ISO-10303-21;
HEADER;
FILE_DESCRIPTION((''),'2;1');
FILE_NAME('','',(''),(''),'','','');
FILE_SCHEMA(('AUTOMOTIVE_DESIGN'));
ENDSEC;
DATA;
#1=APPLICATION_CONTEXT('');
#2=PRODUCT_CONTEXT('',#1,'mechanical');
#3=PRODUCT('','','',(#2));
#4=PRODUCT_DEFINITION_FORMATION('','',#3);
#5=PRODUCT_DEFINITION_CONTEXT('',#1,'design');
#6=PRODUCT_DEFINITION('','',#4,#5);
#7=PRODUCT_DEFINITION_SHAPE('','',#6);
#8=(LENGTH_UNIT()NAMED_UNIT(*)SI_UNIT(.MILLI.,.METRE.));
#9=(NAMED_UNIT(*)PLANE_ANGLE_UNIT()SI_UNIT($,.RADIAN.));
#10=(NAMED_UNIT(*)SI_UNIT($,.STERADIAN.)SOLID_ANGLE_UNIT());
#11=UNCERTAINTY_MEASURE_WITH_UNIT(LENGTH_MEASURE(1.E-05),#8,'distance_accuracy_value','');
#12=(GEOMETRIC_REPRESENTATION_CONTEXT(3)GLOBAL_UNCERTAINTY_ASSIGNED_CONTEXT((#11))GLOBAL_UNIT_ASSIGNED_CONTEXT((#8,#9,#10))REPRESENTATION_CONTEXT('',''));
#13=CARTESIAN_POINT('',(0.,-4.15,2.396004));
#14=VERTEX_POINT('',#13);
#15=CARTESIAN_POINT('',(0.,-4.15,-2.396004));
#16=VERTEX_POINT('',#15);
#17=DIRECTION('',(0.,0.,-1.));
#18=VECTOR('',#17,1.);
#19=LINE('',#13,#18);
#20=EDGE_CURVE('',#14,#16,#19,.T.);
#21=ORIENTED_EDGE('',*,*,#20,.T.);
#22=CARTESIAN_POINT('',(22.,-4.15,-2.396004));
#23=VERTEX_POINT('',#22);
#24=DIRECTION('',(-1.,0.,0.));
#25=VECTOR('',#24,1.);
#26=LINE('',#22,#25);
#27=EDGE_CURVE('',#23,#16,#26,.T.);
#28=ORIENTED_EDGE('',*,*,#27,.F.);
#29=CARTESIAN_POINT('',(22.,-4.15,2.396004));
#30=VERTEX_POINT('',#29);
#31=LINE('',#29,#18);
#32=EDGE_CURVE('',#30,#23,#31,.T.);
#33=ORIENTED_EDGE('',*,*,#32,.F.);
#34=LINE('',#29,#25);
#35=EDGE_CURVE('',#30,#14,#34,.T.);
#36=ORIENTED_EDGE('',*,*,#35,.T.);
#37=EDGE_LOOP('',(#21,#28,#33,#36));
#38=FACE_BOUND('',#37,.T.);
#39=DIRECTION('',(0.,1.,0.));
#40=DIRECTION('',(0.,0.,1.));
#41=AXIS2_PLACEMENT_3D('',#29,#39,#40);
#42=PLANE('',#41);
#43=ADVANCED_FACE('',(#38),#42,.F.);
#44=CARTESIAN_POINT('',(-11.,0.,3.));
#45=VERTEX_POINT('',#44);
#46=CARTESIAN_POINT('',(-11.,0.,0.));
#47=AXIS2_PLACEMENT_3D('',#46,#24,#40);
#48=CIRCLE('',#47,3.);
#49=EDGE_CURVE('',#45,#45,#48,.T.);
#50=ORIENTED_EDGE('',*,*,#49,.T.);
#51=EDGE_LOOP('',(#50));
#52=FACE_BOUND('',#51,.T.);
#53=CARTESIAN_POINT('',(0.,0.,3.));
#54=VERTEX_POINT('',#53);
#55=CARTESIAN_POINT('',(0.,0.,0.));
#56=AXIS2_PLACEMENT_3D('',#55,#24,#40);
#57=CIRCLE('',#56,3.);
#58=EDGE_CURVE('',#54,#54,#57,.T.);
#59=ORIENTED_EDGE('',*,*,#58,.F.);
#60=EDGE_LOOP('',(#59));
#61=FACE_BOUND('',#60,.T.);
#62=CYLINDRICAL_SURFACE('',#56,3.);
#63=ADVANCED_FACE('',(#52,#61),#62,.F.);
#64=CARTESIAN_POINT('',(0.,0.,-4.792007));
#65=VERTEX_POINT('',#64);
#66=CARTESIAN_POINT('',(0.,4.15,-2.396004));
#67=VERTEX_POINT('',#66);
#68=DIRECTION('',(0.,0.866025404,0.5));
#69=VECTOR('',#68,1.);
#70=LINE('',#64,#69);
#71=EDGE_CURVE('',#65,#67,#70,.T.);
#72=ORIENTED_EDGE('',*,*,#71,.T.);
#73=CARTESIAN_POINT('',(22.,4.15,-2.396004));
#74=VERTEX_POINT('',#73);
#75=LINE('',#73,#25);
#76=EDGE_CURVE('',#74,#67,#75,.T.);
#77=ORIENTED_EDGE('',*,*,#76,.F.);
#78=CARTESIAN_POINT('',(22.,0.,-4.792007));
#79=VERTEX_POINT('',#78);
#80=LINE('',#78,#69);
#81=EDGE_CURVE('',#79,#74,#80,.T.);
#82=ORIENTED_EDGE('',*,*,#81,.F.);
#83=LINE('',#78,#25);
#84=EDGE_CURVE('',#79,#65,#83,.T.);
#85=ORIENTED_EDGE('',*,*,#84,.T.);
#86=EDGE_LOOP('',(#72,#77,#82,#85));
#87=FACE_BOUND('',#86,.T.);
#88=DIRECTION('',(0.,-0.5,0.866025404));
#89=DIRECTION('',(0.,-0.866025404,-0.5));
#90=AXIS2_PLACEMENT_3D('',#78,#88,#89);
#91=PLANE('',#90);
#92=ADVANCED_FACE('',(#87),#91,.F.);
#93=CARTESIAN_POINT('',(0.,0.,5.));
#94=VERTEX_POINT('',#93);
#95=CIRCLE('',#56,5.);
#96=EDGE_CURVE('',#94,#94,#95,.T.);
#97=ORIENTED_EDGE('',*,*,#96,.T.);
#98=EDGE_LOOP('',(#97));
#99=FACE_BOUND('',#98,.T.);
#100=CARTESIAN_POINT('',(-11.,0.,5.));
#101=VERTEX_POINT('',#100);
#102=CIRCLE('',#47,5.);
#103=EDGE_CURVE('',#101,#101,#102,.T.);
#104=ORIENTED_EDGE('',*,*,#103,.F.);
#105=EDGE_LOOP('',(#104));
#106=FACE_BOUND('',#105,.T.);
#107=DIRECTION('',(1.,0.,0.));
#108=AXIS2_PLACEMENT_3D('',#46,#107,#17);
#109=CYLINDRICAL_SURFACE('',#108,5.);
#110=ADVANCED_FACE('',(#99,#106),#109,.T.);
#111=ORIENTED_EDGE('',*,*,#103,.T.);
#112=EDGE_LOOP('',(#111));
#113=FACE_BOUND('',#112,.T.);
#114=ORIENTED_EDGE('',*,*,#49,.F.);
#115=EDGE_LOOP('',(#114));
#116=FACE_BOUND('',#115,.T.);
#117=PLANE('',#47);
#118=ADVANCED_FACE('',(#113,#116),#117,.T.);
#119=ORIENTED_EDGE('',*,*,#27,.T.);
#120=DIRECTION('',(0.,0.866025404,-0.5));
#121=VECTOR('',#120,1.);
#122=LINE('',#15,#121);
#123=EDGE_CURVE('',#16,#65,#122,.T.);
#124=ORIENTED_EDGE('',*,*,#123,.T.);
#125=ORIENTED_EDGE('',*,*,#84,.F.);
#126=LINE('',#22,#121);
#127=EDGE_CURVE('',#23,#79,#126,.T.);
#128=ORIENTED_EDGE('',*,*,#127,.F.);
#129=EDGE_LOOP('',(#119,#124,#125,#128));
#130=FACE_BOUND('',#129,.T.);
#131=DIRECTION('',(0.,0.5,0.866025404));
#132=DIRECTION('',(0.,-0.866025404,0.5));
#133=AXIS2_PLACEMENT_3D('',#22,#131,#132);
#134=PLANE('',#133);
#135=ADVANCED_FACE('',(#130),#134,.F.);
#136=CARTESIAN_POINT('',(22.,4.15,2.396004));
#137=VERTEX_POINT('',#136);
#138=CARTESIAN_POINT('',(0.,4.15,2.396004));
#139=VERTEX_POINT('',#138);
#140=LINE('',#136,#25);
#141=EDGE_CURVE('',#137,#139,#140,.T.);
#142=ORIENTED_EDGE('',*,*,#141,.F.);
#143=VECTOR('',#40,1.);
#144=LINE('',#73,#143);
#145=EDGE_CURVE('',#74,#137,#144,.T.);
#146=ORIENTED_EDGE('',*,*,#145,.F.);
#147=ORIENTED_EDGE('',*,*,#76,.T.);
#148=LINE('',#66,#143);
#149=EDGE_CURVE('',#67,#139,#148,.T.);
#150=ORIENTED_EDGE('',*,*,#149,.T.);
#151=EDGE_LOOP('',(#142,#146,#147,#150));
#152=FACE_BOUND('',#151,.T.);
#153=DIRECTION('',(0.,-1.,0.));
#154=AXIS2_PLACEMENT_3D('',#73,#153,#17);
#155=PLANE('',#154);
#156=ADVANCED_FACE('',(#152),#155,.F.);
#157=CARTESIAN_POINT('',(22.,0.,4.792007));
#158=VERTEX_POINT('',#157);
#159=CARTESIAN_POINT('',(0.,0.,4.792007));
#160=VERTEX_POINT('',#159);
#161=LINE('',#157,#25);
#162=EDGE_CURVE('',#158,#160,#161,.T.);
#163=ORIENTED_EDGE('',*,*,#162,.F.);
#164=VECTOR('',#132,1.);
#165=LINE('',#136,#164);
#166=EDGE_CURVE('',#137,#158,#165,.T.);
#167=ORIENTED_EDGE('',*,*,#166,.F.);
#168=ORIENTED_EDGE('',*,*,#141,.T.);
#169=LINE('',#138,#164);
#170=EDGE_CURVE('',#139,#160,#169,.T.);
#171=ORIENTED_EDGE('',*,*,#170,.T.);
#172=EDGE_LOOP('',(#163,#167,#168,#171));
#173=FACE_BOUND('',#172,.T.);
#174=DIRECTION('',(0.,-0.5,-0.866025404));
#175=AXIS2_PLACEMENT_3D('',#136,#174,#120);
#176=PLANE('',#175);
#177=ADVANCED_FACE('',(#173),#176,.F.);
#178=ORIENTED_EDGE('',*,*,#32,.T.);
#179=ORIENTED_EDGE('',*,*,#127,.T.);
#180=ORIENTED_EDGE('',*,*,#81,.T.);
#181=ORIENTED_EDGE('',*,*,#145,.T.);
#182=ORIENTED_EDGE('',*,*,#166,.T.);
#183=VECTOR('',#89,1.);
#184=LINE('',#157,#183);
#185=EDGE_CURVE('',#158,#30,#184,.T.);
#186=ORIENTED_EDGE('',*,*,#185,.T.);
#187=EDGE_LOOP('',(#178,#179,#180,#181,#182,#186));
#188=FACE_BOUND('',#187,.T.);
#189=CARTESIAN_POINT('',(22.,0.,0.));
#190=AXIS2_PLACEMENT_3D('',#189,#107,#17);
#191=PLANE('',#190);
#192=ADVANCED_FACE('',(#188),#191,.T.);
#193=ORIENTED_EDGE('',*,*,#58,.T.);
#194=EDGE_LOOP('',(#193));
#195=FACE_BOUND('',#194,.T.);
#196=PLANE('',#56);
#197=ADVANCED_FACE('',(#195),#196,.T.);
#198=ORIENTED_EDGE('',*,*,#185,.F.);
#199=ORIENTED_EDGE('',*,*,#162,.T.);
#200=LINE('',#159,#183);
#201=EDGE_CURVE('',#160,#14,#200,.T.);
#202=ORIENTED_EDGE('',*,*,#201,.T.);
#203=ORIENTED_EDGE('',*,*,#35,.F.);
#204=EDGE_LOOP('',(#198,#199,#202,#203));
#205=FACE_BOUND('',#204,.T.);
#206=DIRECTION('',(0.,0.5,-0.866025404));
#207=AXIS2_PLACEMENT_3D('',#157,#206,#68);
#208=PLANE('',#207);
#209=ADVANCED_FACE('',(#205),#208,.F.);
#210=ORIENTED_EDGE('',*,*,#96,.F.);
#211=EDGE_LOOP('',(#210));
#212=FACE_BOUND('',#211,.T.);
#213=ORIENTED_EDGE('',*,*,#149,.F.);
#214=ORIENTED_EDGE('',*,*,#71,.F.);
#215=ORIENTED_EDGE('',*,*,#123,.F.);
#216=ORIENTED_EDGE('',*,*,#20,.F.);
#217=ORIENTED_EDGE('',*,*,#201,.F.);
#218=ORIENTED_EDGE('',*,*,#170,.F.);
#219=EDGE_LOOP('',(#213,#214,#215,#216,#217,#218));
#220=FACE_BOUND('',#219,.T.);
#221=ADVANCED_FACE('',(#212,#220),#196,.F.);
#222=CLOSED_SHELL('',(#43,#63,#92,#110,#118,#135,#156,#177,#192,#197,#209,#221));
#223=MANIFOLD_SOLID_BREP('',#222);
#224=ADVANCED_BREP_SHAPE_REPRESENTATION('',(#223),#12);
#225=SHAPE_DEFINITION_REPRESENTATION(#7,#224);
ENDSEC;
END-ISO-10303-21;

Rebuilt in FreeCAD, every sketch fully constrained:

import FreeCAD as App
import Part
import Sketcher
from FreeCAD import Vector
Q = App.Units.Quantity

doc = App.newDocument("Part")
body = doc.addObject("PartDesign::Body", "Body")

# Sketch on YZ plane
sketch1 = doc.addObject("Sketcher::SketchObject", "Sketch")
body.addObject(sketch1)
sketch1.AttachmentSupport = (doc.YZ_Plane, [""])
sketch1.MapMode = "FlatFace"
sketch1.addGeometry(Part.LineSegment(Vector(-4.2, -2.4, 0), Vector(0, -4.8, 0)), False)
sketch1.addGeometry(Part.LineSegment(Vector(0, -4.8, 0), Vector(4.2, -2.4, 0)), False)
sketch1.addGeometry(Part.LineSegment(Vector(4.2, -2.4, 0), Vector(4.2, 2.4, 0)), False)
sketch1.addGeometry(Part.LineSegment(Vector(4.2, 2.4, 0), Vector(0, 4.8, 0)), False)
sketch1.addGeometry(Part.LineSegment(Vector(0, 4.8, 0), Vector(-4.2, 2.4, 0)), False)
sketch1.addGeometry(Part.LineSegment(Vector(-4.2, 2.4, 0), Vector(-4.2, -2.4, 0)), False)
sketch1.addConstraint(Sketcher.Constraint("Coincident", 0, 2, 1, 1))
sketch1.addConstraint(Sketcher.Constraint("Coincident", 1, 2, 2, 1))
sketch1.addConstraint(Sketcher.Constraint("Coincident", 2, 2, 3, 1))
sketch1.addConstraint(Sketcher.Constraint("Coincident", 3, 2, 4, 1))
sketch1.addConstraint(Sketcher.Constraint("Coincident", 4, 2, 5, 1))
sketch1.addConstraint(Sketcher.Constraint("Coincident", 5, 2, 0, 1))
sketch1.addConstraint(Sketcher.Constraint("Vertical", 2))
sketch1.addConstraint(Sketcher.Constraint("Vertical", 5))
sketch1.addConstraint(Sketcher.Constraint("Symmetric", 0, 2, 3, 2, -1, 1))
sketch1.addConstraint(Sketcher.Constraint("Symmetric", 1, 2, 4, 2, -1, 1))
sketch1.addConstraint(Sketcher.Constraint("PointOnObject", 0, 2, -2))
sketch1.addConstraint(Sketcher.Constraint("Parallel", 0, 3))
sketch1.addConstraint(Sketcher.Constraint("Horizontal", 2, 2, 4, 2))
sketch1.addConstraint(Sketcher.Constraint("Angle", 0, Q("-30 deg")))
sketch1.addConstraint(Sketcher.Constraint("DistanceX", 4, 2, 2, 2, Q("8.3 mm")))
sketch1.addConstraint(Sketcher.Constraint("DistanceY", 2, 1, 2, 2, Q("4.792007 mm")))
pad1 = doc.addObject("PartDesign::Pad", "Pad")
body.addObject(pad1)
pad1.Profile = sketch1
pad1.Length = 22

# Sketch on YZ plane
sketch2 = doc.addObject("Sketcher::SketchObject", "Sketch001")
body.addObject(sketch2)
sketch2.AttachmentSupport = (doc.YZ_Plane, [""])
sketch2.MapMode = "FlatFace"
sketch2.addGeometry(Part.Circle(Vector(0, 0, 0), Vector(0, 0, 1), 5), False)
sketch2.addConstraint(Sketcher.Constraint("Coincident", 0, 3, -1, 1))
sketch2.addConstraint(Sketcher.Constraint("Diameter", 0, Q("10 mm")))
pad2 = doc.addObject("PartDesign::Pad", "Pad001")
body.addObject(pad2)
pad2.Profile = sketch2
pad2.Length = 11
pad2.Reversed = True

# Sketch on YZ plane
sketch3 = doc.addObject("Sketcher::SketchObject", "Sketch002")
body.addObject(sketch3)
sketch3.AttachmentSupport = (doc.YZ_Plane, [""])
sketch3.MapMode = "FlatFace"
sketch3.AttachmentOffset = App.Placement(Vector(0, 0, -11), App.Rotation())
sketch3.addGeometry(Part.Circle(Vector(0, 0, 0), Vector(0, 0, 1), 3), False)
sketch3.addConstraint(Sketcher.Constraint("Coincident", 0, 3, -1, 1))
sketch3.addConstraint(Sketcher.Constraint("Diameter", 0, Q("6 mm")))
pocket1 = doc.addObject("PartDesign::Pocket", "Pocket")
body.addObject(pocket1)
pocket1.Profile = sketch3
pocket1.Length = 11
pocket1.Reversed = True

doc.recompute()
